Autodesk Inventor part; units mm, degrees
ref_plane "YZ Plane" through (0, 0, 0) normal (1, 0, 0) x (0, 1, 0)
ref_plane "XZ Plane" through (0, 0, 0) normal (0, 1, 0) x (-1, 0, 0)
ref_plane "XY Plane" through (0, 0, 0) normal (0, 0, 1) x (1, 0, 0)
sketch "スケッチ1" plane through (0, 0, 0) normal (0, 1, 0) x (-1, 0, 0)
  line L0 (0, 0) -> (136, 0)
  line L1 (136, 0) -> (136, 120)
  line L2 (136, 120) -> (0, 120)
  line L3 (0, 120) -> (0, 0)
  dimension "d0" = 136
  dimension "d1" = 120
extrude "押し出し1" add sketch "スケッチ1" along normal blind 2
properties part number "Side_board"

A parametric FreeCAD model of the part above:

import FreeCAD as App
import Part
import Sketcher
from FreeCAD import Vector
Q = App.Units.Quantity

doc = App.newDocument("Part")
body = doc.addObject("PartDesign::Body", "Body")

# Sketch on XZ plane
sketch1 = doc.addObject("Sketcher::SketchObject", "Sketch")
body.addObject(sketch1)
sketch1.AttachmentSupport = (doc.XZ_Plane, [""])
sketch1.MapMode = "FlatFace"
sketch1.addGeometry(Part.LineSegment(Vector(0, 120, 0), Vector(0, 0, 0)), False)
sketch1.addGeometry(Part.LineSegment(Vector(0, 0, 0), Vector(-136, 0, 0)), False)
sketch1.addGeometry(Part.LineSegment(Vector(-136, 0, 0), Vector(-136, 120, 0)), False)
sketch1.addGeometry(Part.LineSegment(Vector(-136, 120, 0), Vector(0, 120, 0)), False)
sketch1.addConstraint(Sketcher.Constraint("Coincident", 0, 2, 1, 1))
sketch1.addConstraint(Sketcher.Constraint("Coincident", 1, 2, 2, 1))
sketch1.addConstraint(Sketcher.Constraint("Coincident", 2, 2, 3, 1))
sketch1.addConstraint(Sketcher.Constraint("Coincident", 3, 2, 0, 1))
sketch1.addConstraint(Sketcher.Constraint("Vertical", 0))
sketch1.addConstraint(Sketcher.Constraint("Horizontal", 1))
sketch1.addConstraint(Sketcher.Constraint("Vertical", 2))
sketch1.addConstraint(Sketcher.Constraint("Horizontal", 3))
sketch1.addConstraint(Sketcher.Constraint("Coincident", 0, 2, -1, 1))
sketch1.addConstraint(Sketcher.Constraint("DistanceX", 1, 2, 1, 1, Q("136 mm")))
sketch1.addConstraint(Sketcher.Constraint("DistanceY", 0, 2, 0, 1, Q("120 mm")))
pad1 = doc.addObject("PartDesign::Pad", "Pad")
body.addObject(pad1)
pad1.Profile = sketch1
pad1.Length = 2
pad1.Reversed = True

doc.recompute()
